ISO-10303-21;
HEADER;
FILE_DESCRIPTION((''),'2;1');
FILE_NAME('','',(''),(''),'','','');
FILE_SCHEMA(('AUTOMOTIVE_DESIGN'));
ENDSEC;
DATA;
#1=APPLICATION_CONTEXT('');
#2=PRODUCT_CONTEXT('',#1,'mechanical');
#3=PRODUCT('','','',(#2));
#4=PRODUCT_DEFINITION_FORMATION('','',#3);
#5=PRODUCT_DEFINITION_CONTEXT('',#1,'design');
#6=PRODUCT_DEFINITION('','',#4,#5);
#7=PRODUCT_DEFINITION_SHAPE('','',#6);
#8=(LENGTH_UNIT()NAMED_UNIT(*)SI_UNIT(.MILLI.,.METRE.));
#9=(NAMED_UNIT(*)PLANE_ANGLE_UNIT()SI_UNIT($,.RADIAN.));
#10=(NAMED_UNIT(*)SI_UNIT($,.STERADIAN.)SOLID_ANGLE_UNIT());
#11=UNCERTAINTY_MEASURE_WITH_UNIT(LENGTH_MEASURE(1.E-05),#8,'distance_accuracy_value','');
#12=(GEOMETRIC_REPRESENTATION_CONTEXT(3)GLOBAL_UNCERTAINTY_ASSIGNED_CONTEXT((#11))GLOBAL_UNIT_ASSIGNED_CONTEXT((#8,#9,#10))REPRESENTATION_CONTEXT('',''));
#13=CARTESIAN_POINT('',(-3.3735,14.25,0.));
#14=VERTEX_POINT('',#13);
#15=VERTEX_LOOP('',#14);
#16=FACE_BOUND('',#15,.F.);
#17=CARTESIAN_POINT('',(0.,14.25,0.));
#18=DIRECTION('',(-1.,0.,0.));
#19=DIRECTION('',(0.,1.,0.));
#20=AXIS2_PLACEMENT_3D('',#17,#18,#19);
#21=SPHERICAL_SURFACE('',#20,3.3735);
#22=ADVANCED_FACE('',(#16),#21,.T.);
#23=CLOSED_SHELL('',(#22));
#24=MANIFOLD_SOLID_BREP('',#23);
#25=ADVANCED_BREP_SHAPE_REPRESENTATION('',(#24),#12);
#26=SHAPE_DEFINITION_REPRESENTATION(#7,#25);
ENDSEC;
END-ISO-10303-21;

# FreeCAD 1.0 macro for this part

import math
import FreeCAD as App
import Part
import Sketcher
Q = App.Units.Quantity

doc = App.newDocument("Part")
params = doc.addObject("Spreadsheet::Sheet", "Params")
for row, (alias, value) in enumerate([
    ("sketch1_width", "0.2656299 in"),
    ("revolution_angle", "360 deg"),
], start=1):
    params.set(f"A{row}", alias)
    params.set(f"B{row}", "=" + value)
    params.setAlias(f"B{row}", alias)

body = doc.addObject("PartDesign::Body", "Body")

# Sketch on XY plane
sketch1 = body.newObject("Sketcher::SketchObject", "Sketch")
sketch1.AttachmentSupport = (doc.getObject("XY_Plane"), [""])
sketch1.MapMode = "FlatFace"
sketch1.addGeometry([
    Part.LineSegment(App.Vector(-3.3735, 14.25, 0), App.Vector(3.3735, 14.25, 0)),
    Part.ArcOfCircle(Part.Circle(App.Vector(0, 14.25, 0), App.Vector(0, 0, 1), 3.3735), math.radians(0), math.radians(180)),
], False)
sketch1.addGeometry(Part.LineSegment(App.Vector(-3.3735, 14.25, 0), App.Vector(3.3735, 14.25, 0)), True)  # axis
sketch1.addConstraint([
    Sketcher.Constraint("Coincident", 0, 1, 1, 2),
    Sketcher.Constraint("Coincident", 1, 1, 0, 2),
    Sketcher.Constraint("Horizontal", 0),
    Sketcher.Constraint("Horizontal", 2),
    Sketcher.Constraint("Coincident", 2, 1, 0, 1),
    Sketcher.Constraint("PointOnObject", 1, 3, -2),
    Sketcher.Constraint("Horizontal", 1, 3, 0, 1),
    Sketcher.Constraint("Equal", 0, 2),
    Sketcher.Constraint("DistanceX", 0, 1, 0, 2, Q("0.2656299 in")),
    Sketcher.Constraint("DistanceY", -1, 1, 1, 3, Q("14.25 mm")),
])
sketch1.setExpression("Constraints[8]", "Params.sketch1_width")
revolution = body.newObject("PartDesign::Revolution", "Revolution")
revolution.Profile = sketch1
revolution.ReferenceAxis = (sketch1, ["Axis0"])
revolution.setExpression("Angle", "Params.revolution_angle")

doc.recompute()
